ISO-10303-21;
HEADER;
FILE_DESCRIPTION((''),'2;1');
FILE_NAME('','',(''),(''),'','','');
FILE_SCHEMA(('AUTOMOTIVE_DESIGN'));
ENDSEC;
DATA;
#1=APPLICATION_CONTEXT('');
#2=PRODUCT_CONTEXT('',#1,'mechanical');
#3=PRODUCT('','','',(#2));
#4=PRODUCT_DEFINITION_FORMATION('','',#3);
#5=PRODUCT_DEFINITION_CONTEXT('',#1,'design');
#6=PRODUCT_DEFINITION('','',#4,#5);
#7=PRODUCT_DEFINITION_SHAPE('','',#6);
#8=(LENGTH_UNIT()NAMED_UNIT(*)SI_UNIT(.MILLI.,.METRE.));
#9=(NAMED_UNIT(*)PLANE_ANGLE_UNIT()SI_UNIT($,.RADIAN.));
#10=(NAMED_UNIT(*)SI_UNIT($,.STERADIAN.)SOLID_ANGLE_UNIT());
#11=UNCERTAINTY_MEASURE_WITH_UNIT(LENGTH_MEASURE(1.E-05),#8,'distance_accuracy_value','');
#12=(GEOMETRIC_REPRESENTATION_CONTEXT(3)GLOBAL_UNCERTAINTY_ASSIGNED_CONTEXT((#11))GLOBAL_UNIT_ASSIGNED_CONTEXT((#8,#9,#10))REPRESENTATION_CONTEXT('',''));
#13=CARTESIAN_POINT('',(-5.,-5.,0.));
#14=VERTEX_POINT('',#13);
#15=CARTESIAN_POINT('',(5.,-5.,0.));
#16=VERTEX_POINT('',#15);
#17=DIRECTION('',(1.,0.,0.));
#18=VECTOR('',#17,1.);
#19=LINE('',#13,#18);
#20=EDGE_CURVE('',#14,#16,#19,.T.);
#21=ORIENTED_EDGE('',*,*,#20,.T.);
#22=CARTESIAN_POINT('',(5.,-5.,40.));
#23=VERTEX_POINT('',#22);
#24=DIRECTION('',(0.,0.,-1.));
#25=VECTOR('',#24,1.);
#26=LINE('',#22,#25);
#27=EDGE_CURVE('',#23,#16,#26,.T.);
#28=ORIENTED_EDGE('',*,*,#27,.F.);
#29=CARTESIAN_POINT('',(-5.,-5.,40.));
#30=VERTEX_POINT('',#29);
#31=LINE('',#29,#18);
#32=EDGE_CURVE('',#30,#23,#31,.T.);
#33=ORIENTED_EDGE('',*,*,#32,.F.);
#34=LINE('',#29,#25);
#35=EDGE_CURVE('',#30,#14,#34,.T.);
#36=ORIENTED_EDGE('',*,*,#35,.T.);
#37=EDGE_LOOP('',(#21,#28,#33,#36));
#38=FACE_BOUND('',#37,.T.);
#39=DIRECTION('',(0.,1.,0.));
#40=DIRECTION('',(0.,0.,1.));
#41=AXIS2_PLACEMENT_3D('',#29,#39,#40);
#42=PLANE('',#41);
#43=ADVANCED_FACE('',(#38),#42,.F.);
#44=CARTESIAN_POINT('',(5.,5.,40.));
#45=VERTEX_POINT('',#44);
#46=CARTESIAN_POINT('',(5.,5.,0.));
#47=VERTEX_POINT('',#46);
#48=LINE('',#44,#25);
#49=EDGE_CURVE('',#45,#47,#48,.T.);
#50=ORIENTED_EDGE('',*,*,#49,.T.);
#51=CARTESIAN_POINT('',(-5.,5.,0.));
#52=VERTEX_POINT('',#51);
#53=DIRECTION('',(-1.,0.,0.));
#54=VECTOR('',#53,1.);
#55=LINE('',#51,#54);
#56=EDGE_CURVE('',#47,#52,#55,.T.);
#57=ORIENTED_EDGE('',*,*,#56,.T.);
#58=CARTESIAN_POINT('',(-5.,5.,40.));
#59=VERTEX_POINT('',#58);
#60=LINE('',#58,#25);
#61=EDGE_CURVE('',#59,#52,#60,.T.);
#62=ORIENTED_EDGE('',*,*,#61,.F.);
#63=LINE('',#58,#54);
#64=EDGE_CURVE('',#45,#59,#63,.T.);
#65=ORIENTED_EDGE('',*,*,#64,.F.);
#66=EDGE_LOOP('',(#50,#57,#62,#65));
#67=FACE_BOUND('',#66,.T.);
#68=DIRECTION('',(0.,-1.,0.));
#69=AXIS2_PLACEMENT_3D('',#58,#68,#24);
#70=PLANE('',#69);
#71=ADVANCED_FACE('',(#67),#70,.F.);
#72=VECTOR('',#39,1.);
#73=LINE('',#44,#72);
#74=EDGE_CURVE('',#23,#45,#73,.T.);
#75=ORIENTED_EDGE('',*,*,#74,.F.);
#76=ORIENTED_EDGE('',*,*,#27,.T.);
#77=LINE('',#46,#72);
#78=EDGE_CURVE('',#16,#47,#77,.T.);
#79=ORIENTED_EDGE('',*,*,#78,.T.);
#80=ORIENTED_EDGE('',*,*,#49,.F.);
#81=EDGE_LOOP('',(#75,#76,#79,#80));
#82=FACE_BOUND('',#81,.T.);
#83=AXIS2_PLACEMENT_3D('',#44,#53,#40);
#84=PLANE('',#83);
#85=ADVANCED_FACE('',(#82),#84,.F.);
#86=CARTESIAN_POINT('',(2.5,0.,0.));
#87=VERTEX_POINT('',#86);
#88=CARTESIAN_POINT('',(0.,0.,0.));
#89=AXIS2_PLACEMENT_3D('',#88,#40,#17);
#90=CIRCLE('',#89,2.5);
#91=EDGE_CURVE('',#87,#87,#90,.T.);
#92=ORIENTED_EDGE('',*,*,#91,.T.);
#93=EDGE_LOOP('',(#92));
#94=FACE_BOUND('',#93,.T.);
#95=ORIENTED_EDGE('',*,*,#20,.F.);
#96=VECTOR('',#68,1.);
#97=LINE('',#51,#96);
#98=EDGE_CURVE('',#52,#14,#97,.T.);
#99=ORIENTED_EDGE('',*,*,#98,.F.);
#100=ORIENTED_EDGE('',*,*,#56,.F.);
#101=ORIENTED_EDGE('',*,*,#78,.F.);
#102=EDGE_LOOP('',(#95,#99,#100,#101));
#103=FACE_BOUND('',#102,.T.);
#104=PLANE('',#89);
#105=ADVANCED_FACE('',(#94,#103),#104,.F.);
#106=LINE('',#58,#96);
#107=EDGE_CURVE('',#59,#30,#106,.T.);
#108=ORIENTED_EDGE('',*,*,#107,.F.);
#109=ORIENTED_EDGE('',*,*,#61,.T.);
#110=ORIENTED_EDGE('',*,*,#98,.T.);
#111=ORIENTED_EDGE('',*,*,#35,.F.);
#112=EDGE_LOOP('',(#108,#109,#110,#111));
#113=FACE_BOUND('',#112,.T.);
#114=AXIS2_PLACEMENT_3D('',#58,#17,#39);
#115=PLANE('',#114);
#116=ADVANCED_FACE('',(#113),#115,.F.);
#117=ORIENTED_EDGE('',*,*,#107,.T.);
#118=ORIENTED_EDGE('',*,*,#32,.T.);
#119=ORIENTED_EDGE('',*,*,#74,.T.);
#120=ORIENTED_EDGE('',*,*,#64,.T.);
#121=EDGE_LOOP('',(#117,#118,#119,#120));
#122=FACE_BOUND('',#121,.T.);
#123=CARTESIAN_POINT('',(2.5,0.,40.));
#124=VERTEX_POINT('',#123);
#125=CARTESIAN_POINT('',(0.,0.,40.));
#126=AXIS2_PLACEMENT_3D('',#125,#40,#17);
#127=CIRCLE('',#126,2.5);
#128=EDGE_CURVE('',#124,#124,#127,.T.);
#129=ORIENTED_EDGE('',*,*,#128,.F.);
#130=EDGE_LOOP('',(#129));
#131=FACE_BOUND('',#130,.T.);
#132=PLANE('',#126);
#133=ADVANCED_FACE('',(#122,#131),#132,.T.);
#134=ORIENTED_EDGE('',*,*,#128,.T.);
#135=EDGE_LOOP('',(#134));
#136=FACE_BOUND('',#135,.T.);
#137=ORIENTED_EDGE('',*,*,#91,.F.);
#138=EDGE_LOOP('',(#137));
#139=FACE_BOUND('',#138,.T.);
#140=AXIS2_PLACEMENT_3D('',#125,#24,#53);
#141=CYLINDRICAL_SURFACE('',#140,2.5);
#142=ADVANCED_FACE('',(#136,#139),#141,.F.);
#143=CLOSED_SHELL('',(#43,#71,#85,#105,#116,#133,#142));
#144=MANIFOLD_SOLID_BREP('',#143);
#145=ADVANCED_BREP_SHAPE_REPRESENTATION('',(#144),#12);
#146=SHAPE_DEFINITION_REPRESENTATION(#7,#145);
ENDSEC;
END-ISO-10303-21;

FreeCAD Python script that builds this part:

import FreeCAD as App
import Part
import Sketcher

doc = App.newDocument("Part")
params = doc.addObject("Spreadsheet::Sheet", "Params")
for row, (alias, value) in enumerate([
    ("sketch1_diameter", "5 mm"),
    ("sketch1_width", "10 mm"),
    ("pad1_length", "40 mm"),
], start=1):
    params.set(f"A{row}", alias)
    params.set(f"B{row}", "=" + value)
    params.setAlias(f"B{row}", alias)

body = doc.addObject("PartDesign::Body", "Body")

sketch1 = body.newObject("Sketcher::SketchObject", "Sketch")
sketch1.AttachmentSupport = (doc.getObject("XY_Plane"), [""])
sketch1.MapMode = "FlatFace"
sketch1.addGeometry([
    Part.LineSegment(App.Vector(-5, 5, 0), App.Vector(-5, -5, 0)),
    Part.LineSegment(App.Vector(-5, -5, 0), App.Vector(5, -5, 0)),
    Part.LineSegment(App.Vector(5, -5, 0), App.Vector(5, 5, 0)),
    Part.LineSegment(App.Vector(5, 5, 0), App.Vector(-5, 5, 0)),
    Part.Circle(App.Vector(0, 0, 0), App.Vector(0, 0, 1), 2.5),
], False)
sketch1.addConstraint([
    Sketcher.Constraint("Coincident", 0, 2, 1, 1),
    Sketcher.Constraint("Coincident", 1, 2, 2, 1),
    Sketcher.Constraint("Coincident", 2, 2, 3, 1),
    Sketcher.Constraint("Coincident", 3, 2, 0, 1),
    Sketcher.Constraint("Vertical", 0),
    Sketcher.Constraint("Horizontal", 1),
    Sketcher.Constraint("Vertical", 2),
    Sketcher.Constraint("Horizontal", 3),
    Sketcher.Constraint("Coincident", 4, 3, -1, 1),
    Sketcher.Constraint("Symmetric", 0, 2, 2, 2, -1, 1),
    Sketcher.Constraint("Equal", 3, 0),
    Sketcher.Constraint("Diameter", 4, 5.0),
    Sketcher.Constraint("DistanceX", 1, 1, 1, 2, 10.0),
])
sketch1.setExpression("Constraints[11]", "Params.sketch1_diameter")
sketch1.setExpression("Constraints[12]", "Params.sketch1_width")
pad1 = body.newObject("PartDesign::Pad", "Pad")
pad1.Profile = sketch1
pad1.setExpression("Length", "Params.pad1_length")

doc.recompute()
